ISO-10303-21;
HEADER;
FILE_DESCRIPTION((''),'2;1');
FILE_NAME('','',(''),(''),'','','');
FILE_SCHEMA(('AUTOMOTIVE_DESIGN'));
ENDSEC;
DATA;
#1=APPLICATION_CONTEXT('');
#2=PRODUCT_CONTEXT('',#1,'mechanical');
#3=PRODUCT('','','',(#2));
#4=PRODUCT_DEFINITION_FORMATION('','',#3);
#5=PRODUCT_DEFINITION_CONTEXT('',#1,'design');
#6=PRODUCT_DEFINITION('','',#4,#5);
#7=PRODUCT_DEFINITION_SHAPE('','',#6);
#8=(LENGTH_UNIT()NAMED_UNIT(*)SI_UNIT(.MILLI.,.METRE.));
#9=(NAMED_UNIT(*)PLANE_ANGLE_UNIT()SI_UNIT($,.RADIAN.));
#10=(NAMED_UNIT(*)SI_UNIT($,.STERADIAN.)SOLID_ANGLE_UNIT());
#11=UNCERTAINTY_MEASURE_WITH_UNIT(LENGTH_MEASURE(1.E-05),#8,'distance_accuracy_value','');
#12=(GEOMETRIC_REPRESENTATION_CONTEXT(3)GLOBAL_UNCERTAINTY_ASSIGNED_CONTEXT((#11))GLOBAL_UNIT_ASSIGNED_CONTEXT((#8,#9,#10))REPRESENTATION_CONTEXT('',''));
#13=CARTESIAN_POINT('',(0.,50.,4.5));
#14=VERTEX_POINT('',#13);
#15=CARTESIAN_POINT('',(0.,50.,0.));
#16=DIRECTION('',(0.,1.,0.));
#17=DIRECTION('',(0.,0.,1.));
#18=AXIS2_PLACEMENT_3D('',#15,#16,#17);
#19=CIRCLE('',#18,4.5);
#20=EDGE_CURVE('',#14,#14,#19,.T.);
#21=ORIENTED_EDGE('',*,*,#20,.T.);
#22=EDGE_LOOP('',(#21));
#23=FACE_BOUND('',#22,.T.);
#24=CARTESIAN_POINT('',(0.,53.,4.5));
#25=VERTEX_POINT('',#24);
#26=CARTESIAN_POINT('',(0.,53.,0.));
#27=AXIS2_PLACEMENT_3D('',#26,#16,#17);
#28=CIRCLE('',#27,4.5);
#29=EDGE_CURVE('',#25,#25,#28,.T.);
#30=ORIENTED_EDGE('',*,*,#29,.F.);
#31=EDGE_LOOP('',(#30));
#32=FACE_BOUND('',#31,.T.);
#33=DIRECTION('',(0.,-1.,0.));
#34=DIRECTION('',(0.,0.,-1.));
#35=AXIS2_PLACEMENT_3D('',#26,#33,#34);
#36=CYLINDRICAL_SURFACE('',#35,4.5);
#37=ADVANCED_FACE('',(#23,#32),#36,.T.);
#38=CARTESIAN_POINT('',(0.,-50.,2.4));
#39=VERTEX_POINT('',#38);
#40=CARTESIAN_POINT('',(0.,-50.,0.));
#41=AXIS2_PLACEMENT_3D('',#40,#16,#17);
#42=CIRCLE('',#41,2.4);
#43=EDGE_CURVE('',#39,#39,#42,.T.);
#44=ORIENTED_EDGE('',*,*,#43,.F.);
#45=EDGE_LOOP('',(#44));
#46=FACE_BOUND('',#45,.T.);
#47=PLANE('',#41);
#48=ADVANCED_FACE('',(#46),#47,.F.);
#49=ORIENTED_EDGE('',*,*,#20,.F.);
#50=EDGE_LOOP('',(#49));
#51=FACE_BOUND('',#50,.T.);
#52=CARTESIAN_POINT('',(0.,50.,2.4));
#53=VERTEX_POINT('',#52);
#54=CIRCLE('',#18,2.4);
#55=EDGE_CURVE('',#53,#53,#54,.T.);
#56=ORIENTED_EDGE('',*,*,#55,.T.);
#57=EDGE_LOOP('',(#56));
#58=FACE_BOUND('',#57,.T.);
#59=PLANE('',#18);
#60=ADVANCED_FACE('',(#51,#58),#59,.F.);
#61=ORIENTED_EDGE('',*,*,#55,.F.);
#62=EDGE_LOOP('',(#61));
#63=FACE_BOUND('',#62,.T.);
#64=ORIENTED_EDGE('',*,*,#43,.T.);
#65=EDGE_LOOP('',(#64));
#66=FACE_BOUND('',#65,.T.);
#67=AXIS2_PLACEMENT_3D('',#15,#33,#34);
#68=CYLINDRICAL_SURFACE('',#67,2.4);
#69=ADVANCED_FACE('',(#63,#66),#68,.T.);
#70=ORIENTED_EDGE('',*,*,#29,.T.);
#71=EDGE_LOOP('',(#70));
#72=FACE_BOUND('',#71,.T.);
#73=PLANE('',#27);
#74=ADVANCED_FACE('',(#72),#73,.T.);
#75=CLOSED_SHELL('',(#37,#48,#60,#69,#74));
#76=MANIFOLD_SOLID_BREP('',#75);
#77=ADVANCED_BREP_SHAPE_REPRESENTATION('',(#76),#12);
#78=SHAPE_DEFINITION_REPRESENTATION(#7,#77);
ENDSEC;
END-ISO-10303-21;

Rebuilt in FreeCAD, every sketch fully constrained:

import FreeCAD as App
import Part
import Sketcher
Q = App.Units.Quantity

doc = App.newDocument("Part")
body = doc.addObject("PartDesign::Body", "Body")

sketch1 = body.newObject("Sketcher::SketchObject", "Sketch")
sketch1.AttachmentSupport = (doc.getObject("XZ_Plane"), [""])
sketch1.MapMode = "FlatFace"
sketch1.addGeometry(Part.Circle(App.Vector(0, 0, 0), App.Vector(0, 0, 1), 2.4), False)
sketch1.addConstraint(Sketcher.Constraint("Coincident", 0, 3, -1, 1))
sketch1.addConstraint(Sketcher.Constraint("Diameter", 0, Q("4.8 mm")))
pad1 = body.newObject("PartDesign::Pad", "Pad")
pad1.Profile = sketch1
pad1.Length = 100
pad1.Midplane = True

sketch2 = body.newObject("Sketcher::SketchObject", "Sketch001")
sketch2.AttachmentSupport = (doc.getObject("XZ_Plane"), [""])
sketch2.MapMode = "FlatFace"
sketch2.AttachmentOffset = App.Placement(App.Vector(0, 0, -50), App.Rotation())
sketch2.addGeometry(Part.Circle(App.Vector(0, 0, 0), App.Vector(0, 0, 1), 4.5), False)
sketch2.addConstraint(Sketcher.Constraint("Coincident", 0, 3, -1, 1))
sketch2.addConstraint(Sketcher.Constraint("Diameter", 0, Q("9 mm")))
pad2 = body.newObject("PartDesign::Pad", "Pad001")
pad2.Profile = sketch2
pad2.Length = 3
pad2.Reversed = True

doc.recompute()
